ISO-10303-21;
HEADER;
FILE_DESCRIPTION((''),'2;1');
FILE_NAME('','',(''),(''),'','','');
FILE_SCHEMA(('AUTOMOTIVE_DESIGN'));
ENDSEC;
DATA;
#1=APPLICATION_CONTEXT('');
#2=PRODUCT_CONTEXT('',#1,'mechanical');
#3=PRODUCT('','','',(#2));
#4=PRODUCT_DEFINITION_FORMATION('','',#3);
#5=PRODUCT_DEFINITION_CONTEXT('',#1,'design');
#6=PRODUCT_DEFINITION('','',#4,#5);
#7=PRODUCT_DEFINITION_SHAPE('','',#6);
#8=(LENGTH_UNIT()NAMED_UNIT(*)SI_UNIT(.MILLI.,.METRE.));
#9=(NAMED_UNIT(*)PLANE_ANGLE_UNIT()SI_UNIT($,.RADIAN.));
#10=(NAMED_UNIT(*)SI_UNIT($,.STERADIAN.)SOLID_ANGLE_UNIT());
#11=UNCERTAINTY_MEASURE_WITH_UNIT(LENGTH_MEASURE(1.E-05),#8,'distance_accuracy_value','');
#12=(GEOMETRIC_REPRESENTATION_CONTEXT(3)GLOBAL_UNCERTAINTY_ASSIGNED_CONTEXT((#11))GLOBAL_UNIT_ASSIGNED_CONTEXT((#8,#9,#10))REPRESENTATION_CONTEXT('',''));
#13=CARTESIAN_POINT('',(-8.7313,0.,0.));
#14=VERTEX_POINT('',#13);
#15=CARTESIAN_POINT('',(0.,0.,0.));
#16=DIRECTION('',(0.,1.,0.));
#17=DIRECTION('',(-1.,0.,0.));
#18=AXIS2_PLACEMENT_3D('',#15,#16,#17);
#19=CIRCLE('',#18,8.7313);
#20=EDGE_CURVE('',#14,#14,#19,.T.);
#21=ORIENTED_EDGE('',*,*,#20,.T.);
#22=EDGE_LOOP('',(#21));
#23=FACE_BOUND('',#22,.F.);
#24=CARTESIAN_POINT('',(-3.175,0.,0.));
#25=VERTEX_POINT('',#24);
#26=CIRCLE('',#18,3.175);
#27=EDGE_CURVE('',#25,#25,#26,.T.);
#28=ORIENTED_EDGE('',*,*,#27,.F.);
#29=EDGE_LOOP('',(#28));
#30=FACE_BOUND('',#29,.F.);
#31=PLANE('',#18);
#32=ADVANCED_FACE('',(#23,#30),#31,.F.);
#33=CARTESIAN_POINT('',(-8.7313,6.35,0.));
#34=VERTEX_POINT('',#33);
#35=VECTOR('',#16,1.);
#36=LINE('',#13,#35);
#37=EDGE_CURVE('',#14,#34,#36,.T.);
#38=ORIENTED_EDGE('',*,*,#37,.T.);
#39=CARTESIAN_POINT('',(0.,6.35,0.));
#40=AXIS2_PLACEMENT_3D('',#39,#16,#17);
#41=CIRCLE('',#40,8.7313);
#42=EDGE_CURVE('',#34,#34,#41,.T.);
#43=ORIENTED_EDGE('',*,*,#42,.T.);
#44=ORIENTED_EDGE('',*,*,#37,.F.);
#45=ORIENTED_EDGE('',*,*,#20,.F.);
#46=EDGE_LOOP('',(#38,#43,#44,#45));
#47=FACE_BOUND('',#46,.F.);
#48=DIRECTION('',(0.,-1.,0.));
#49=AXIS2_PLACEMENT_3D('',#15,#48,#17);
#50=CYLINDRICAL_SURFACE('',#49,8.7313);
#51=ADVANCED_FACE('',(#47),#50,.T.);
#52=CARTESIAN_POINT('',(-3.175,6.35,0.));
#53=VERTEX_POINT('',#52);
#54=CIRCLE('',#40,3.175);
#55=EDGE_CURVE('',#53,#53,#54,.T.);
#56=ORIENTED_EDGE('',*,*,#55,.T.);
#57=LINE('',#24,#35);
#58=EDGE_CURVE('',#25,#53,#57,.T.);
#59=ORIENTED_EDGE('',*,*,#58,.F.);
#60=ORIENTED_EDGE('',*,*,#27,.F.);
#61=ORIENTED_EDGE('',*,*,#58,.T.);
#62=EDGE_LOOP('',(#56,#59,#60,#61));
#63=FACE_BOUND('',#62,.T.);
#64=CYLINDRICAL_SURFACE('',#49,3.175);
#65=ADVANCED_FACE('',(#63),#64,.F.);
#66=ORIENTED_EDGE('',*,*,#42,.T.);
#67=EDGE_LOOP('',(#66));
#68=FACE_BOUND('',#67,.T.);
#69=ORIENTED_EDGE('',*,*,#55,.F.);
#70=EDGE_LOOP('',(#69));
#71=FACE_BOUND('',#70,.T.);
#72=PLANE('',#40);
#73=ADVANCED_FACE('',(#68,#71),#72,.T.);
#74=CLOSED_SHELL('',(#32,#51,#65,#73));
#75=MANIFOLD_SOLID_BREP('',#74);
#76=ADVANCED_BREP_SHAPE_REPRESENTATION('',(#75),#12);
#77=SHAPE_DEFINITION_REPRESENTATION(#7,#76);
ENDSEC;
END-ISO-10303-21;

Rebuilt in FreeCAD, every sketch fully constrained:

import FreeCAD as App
import Part
import Sketcher
from FreeCAD import Vector
Q = App.Units.Quantity

doc = App.newDocument("Part")
params = doc.addObject("Spreadsheet::Sheet", "Params")
for row, (alias, value) in enumerate([
    ("sketch1_diameter", "0.25 in"),
    ("sketch1_diameter2", "0.6875 in"),
    ("pad1_length", "0.25 in"),
], start=1):
    params.set(f"A{row}", alias)
    params.set(f"B{row}", "=" + value)
    params.setAlias(f"B{row}", alias)

body = doc.addObject("PartDesign::Body", "Body")

# Sketch on XZ plane
sketch1 = body.newObject("Sketcher::SketchObject", "Sketch")
sketch1.AttachmentSupport = (doc.getObject("XZ_Plane"), [""])
sketch1.MapMode = "FlatFace"
sketch1.addGeometry(Part.Circle(Vector(0, 0, 0), Vector(0, 0, 1), 8.7313), False)
sketch1.addGeometry(Part.Circle(Vector(0, 0, 0), Vector(0, 0, 1), 3.175), False)
sketch1.addConstraint(Sketcher.Constraint("Coincident", 0, 3, -1, 1))
sketch1.addConstraint(Sketcher.Constraint("Coincident", 1, 3, -1, 1))
sketch1.addConstraint(Sketcher.Constraint("Diameter", 1, Q("0.25 in")))
sketch1.addConstraint(Sketcher.Constraint("Diameter", 0, Q("0.6875 in")))
sketch1.setExpression("Constraints[2]", "Params.sketch1_diameter")
sketch1.setExpression("Constraints[3]", "Params.sketch1_diameter2")
pad1 = body.newObject("PartDesign::Pad", "Pad")
pad1.Profile = sketch1
pad1.setExpression("Length", "Params.pad1_length")
pad1.Reversed = True

doc.recompute()
